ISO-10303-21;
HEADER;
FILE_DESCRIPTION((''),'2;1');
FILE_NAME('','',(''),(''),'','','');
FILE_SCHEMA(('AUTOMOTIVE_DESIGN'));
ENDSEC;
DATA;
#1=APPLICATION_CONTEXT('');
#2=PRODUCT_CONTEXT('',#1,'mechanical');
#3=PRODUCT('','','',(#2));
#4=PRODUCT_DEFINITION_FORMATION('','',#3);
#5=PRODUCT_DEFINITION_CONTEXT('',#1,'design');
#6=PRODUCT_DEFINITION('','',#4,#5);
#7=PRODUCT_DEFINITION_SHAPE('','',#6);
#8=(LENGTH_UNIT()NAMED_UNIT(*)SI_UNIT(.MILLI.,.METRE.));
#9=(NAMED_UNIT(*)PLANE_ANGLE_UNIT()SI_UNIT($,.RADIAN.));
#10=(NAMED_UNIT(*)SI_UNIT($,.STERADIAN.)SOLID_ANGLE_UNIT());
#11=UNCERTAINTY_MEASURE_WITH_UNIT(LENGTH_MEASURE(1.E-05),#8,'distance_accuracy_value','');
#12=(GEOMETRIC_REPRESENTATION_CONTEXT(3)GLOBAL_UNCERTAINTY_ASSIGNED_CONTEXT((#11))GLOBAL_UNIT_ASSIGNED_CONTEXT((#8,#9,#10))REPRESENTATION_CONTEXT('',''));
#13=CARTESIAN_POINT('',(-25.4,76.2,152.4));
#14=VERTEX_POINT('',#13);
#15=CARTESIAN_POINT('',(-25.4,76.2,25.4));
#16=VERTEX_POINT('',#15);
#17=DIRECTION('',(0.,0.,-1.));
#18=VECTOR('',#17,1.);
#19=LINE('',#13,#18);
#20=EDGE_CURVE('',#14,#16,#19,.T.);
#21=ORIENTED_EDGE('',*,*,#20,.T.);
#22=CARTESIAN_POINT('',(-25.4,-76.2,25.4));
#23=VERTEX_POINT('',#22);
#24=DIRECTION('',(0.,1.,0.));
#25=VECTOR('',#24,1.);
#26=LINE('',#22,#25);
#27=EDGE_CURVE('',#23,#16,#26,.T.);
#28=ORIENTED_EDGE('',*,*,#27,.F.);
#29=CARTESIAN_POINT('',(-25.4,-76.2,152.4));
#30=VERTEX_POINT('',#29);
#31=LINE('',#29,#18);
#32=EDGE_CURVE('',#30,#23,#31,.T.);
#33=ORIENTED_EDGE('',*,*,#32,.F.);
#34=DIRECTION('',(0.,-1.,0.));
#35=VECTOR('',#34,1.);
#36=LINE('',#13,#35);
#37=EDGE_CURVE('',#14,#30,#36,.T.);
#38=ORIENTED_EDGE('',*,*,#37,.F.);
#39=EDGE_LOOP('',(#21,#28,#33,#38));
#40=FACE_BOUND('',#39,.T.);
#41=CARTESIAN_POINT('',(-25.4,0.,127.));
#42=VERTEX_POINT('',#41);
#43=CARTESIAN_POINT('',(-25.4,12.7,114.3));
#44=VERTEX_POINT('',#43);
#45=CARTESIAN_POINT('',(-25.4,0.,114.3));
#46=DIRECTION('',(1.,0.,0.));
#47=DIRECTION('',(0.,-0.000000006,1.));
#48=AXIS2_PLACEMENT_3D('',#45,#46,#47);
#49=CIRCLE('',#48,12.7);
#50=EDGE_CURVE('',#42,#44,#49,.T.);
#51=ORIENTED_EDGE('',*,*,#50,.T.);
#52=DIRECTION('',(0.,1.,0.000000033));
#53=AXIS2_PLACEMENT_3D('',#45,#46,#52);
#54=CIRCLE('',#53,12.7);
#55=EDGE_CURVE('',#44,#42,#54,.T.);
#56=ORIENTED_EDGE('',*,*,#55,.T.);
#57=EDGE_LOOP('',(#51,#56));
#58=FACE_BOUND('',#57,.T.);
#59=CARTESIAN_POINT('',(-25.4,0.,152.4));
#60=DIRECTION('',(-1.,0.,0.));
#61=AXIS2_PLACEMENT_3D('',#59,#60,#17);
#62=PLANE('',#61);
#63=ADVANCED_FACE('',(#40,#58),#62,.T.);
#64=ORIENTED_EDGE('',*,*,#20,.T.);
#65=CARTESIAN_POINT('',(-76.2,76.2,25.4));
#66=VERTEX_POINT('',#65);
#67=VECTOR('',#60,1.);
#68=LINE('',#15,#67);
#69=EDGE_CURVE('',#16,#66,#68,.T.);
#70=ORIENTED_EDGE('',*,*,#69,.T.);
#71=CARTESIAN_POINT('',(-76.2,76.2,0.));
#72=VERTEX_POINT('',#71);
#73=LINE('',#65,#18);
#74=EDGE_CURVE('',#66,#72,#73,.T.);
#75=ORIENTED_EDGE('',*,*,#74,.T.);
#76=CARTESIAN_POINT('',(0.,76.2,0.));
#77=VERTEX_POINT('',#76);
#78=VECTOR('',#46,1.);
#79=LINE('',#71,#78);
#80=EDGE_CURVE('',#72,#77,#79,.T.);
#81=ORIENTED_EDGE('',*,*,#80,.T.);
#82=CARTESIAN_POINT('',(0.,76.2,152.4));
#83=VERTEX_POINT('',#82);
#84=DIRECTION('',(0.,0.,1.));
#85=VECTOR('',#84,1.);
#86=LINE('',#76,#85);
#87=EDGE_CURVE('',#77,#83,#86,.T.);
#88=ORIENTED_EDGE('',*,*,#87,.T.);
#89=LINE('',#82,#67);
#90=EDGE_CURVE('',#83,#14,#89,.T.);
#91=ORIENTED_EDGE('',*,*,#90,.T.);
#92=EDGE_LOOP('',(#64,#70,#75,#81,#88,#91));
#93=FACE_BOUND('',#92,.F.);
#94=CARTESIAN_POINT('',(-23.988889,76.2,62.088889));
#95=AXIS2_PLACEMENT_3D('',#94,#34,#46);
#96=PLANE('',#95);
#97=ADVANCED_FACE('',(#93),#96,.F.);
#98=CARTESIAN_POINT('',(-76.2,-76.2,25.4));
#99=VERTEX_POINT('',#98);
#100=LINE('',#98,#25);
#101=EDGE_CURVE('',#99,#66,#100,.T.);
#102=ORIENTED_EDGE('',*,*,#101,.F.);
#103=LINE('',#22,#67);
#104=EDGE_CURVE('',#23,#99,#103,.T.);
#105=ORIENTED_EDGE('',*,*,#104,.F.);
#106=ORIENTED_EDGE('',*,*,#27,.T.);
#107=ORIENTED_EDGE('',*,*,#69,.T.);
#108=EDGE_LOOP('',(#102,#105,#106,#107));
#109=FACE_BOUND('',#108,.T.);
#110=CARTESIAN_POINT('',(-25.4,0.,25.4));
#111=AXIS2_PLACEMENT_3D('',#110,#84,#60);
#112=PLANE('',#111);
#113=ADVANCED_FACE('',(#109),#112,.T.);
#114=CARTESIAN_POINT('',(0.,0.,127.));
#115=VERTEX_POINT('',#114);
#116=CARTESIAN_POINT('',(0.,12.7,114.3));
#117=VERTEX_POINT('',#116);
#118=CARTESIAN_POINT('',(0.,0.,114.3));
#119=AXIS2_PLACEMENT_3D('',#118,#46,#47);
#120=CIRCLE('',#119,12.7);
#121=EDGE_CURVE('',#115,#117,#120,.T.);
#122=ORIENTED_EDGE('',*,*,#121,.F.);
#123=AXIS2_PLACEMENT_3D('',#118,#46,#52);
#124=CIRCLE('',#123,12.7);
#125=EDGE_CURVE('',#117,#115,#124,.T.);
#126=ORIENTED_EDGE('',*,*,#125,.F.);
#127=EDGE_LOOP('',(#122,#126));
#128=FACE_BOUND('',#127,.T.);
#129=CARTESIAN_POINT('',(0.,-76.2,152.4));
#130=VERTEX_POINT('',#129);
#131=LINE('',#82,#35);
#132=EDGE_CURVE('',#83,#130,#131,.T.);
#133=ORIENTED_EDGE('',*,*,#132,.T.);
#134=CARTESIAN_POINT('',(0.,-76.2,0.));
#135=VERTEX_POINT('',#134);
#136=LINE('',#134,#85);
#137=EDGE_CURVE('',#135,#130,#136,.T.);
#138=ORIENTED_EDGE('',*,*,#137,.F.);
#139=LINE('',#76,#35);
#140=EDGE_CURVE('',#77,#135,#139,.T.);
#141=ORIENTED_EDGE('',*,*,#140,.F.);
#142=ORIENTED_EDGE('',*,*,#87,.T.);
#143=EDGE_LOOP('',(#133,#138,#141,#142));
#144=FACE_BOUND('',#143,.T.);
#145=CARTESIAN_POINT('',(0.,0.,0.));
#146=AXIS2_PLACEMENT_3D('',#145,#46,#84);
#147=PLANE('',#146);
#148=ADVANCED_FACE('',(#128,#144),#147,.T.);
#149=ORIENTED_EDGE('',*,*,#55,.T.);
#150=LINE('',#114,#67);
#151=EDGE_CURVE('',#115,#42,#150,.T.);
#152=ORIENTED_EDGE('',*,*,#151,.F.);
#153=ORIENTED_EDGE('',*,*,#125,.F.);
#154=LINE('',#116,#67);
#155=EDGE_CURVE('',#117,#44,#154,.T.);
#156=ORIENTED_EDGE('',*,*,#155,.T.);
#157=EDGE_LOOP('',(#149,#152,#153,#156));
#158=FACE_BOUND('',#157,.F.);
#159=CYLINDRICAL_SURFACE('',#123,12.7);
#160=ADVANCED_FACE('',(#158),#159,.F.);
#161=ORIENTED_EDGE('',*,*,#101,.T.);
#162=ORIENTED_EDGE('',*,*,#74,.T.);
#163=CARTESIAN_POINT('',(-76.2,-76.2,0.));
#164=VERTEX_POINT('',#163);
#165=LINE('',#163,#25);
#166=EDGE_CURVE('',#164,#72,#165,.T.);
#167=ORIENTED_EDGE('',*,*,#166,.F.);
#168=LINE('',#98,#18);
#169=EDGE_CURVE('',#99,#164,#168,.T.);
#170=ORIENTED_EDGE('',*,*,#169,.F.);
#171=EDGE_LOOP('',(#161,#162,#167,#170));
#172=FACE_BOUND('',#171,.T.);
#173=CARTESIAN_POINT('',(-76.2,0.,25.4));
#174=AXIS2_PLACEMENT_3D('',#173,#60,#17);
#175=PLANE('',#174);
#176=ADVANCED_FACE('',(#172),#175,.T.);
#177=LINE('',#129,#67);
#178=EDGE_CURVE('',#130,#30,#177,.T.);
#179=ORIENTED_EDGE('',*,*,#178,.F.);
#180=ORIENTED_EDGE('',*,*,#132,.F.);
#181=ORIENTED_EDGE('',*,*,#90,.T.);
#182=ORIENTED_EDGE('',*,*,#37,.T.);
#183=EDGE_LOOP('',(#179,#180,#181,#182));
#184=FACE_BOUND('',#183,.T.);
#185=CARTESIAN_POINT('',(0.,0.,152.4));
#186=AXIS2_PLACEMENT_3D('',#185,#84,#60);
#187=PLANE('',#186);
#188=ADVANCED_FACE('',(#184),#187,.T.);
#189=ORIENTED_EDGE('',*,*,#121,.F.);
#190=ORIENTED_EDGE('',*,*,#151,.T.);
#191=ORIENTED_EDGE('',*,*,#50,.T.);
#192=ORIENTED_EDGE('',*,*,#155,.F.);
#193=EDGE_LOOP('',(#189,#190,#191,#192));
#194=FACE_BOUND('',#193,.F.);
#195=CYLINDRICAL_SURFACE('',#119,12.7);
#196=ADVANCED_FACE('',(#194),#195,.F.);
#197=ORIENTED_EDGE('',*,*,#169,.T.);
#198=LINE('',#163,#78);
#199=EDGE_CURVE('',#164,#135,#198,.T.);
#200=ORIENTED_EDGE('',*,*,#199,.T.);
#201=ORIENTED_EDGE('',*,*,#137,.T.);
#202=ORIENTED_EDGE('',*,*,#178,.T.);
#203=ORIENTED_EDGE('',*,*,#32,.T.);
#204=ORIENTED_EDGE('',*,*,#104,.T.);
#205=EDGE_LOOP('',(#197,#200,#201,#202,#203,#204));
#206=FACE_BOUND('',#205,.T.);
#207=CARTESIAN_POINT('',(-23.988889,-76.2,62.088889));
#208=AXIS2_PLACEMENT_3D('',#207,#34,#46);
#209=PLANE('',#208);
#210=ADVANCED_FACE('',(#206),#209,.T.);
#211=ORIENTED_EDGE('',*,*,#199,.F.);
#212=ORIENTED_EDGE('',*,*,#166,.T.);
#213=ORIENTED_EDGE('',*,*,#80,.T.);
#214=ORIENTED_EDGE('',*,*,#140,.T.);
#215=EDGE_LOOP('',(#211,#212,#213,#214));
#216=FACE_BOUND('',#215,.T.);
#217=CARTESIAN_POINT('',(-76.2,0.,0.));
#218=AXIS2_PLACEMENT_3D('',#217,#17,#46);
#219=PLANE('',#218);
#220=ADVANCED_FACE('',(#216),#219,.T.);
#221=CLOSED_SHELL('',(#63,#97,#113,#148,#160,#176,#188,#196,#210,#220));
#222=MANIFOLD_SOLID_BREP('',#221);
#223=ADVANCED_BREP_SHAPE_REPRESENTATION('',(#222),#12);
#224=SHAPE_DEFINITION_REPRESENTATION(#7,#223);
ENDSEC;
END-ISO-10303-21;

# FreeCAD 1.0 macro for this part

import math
import FreeCAD as App
import Part
import Sketcher
Q = App.Units.Quantity

doc = App.newDocument("Part")
body = doc.addObject("PartDesign::Body", "Body")

# Sketch on XZ plane
sketch1 = body.newObject("Sketcher::SketchObject", "Sketch")
sketch1.AttachmentSupport = (doc.getObject("XZ_Plane"), [""])
sketch1.MapMode = "FlatFace"
sketch1.addGeometry(Part.LineSegment(App.Vector(-76.2, 0, 0), App.Vector(0, 0, 0)), False)
sketch1.addGeometry(Part.LineSegment(App.Vector(0, 0, 0), App.Vector(0, 152.4, 0)), False)
sketch1.addGeometry(Part.LineSegment(App.Vector(0, 152.4, 0), App.Vector(-25.4, 152.4, 0)), False)
sketch1.addGeometry(Part.LineSegment(App.Vector(-25.4, 152.4, 0), App.Vector(-25.4, 25.4, 0)), False)
sketch1.addGeometry(Part.LineSegment(App.Vector(-25.4, 25.4, 0), App.Vector(-76.2, 25.4, 0)), False)
sketch1.addGeometry(Part.LineSegment(App.Vector(-76.2, 25.4, 0), App.Vector(-76.2, 0, 0)), False)
sketch1.addConstraint(Sketcher.Constraint("Coincident", 0, 2, 1, 1))
sketch1.addConstraint(Sketcher.Constraint("Coincident", 1, 2, 2, 1))
sketch1.addConstraint(Sketcher.Constraint("Coincident", 2, 2, 3, 1))
sketch1.addConstraint(Sketcher.Constraint("Coincident", 3, 2, 4, 1))
sketch1.addConstraint(Sketcher.Constraint("Coincident", 4, 2, 5, 1))
sketch1.addConstraint(Sketcher.Constraint("Coincident", 5, 2, 0, 1))
sketch1.addConstraint(Sketcher.Constraint("Horizontal", 0))
sketch1.addConstraint(Sketcher.Constraint("Vertical", 1))
sketch1.addConstraint(Sketcher.Constraint("Horizontal", 2))
sketch1.addConstraint(Sketcher.Constraint("Vertical", 3))
sketch1.addConstraint(Sketcher.Constraint("Horizontal", 4))
sketch1.addConstraint(Sketcher.Constraint("Vertical", 5))
sketch1.addConstraint(Sketcher.Constraint("Coincident", 0, 2, -1, 1))
sketch1.addConstraint(Sketcher.Constraint("Equal", 2, 5))
sketch1.addConstraint(Sketcher.Constraint("DistanceX", 0, 1, 0, 2, Q("3 in")))
sketch1.addConstraint(Sketcher.Constraint("DistanceX", 2, 2, 2, 1, Q("1 in")))
sketch1.addConstraint(Sketcher.Constraint("DistanceY", 1, 1, 1, 2, Q("6 in")))
pad1 = body.newObject("PartDesign::Pad", "Pad")
pad1.Profile = sketch1
pad1.Length = Q("6 in")
pad1.Midplane = True

# Sketch on YZ plane
sketch2 = body.newObject("Sketcher::SketchObject", "Sketch001")
sketch2.AttachmentSupport = (doc.getObject("YZ_Plane"), [""])
sketch2.MapMode = "FlatFace"
sketch2.addGeometry(Part.ArcOfCircle(Part.Circle(App.Vector(0, 114.3, 0), App.Vector(0, 0, 1), 12.7), math.radians(90), math.radians(360)), False)
sketch2.addGeometry(Part.ArcOfCircle(Part.Circle(App.Vector(0, 114.3, 0), App.Vector(0, 0, 1), 12.7), math.radians(0.000002), math.radians(89.999998)), False)
sketch2.addConstraint(Sketcher.Constraint("Tangent", 0, 1, 1, 2))
sketch2.addConstraint(Sketcher.Constraint("Coincident", 1, 1, 0, 2))
sketch2.addConstraint(Sketcher.Constraint("PointOnObject", 0, 3, -2))
sketch2.addConstraint(Sketcher.Constraint("PointOnObject", 0, 1, -2))
sketch2.addConstraint(Sketcher.Constraint("Horizontal", 0, 3, 1, 1))
sketch2.addConstraint(Sketcher.Constraint("Radius", 0, Q("0.5 in")))
sketch2.addConstraint(Sketcher.Constraint("DistanceY", -1, 1, 0, 1, Q("5 in")))
pocket1 = body.newObject("PartDesign::Pocket", "Pocket")
pocket1.Profile = sketch2
pocket1.Length = Q("2 in")

doc.recompute()
